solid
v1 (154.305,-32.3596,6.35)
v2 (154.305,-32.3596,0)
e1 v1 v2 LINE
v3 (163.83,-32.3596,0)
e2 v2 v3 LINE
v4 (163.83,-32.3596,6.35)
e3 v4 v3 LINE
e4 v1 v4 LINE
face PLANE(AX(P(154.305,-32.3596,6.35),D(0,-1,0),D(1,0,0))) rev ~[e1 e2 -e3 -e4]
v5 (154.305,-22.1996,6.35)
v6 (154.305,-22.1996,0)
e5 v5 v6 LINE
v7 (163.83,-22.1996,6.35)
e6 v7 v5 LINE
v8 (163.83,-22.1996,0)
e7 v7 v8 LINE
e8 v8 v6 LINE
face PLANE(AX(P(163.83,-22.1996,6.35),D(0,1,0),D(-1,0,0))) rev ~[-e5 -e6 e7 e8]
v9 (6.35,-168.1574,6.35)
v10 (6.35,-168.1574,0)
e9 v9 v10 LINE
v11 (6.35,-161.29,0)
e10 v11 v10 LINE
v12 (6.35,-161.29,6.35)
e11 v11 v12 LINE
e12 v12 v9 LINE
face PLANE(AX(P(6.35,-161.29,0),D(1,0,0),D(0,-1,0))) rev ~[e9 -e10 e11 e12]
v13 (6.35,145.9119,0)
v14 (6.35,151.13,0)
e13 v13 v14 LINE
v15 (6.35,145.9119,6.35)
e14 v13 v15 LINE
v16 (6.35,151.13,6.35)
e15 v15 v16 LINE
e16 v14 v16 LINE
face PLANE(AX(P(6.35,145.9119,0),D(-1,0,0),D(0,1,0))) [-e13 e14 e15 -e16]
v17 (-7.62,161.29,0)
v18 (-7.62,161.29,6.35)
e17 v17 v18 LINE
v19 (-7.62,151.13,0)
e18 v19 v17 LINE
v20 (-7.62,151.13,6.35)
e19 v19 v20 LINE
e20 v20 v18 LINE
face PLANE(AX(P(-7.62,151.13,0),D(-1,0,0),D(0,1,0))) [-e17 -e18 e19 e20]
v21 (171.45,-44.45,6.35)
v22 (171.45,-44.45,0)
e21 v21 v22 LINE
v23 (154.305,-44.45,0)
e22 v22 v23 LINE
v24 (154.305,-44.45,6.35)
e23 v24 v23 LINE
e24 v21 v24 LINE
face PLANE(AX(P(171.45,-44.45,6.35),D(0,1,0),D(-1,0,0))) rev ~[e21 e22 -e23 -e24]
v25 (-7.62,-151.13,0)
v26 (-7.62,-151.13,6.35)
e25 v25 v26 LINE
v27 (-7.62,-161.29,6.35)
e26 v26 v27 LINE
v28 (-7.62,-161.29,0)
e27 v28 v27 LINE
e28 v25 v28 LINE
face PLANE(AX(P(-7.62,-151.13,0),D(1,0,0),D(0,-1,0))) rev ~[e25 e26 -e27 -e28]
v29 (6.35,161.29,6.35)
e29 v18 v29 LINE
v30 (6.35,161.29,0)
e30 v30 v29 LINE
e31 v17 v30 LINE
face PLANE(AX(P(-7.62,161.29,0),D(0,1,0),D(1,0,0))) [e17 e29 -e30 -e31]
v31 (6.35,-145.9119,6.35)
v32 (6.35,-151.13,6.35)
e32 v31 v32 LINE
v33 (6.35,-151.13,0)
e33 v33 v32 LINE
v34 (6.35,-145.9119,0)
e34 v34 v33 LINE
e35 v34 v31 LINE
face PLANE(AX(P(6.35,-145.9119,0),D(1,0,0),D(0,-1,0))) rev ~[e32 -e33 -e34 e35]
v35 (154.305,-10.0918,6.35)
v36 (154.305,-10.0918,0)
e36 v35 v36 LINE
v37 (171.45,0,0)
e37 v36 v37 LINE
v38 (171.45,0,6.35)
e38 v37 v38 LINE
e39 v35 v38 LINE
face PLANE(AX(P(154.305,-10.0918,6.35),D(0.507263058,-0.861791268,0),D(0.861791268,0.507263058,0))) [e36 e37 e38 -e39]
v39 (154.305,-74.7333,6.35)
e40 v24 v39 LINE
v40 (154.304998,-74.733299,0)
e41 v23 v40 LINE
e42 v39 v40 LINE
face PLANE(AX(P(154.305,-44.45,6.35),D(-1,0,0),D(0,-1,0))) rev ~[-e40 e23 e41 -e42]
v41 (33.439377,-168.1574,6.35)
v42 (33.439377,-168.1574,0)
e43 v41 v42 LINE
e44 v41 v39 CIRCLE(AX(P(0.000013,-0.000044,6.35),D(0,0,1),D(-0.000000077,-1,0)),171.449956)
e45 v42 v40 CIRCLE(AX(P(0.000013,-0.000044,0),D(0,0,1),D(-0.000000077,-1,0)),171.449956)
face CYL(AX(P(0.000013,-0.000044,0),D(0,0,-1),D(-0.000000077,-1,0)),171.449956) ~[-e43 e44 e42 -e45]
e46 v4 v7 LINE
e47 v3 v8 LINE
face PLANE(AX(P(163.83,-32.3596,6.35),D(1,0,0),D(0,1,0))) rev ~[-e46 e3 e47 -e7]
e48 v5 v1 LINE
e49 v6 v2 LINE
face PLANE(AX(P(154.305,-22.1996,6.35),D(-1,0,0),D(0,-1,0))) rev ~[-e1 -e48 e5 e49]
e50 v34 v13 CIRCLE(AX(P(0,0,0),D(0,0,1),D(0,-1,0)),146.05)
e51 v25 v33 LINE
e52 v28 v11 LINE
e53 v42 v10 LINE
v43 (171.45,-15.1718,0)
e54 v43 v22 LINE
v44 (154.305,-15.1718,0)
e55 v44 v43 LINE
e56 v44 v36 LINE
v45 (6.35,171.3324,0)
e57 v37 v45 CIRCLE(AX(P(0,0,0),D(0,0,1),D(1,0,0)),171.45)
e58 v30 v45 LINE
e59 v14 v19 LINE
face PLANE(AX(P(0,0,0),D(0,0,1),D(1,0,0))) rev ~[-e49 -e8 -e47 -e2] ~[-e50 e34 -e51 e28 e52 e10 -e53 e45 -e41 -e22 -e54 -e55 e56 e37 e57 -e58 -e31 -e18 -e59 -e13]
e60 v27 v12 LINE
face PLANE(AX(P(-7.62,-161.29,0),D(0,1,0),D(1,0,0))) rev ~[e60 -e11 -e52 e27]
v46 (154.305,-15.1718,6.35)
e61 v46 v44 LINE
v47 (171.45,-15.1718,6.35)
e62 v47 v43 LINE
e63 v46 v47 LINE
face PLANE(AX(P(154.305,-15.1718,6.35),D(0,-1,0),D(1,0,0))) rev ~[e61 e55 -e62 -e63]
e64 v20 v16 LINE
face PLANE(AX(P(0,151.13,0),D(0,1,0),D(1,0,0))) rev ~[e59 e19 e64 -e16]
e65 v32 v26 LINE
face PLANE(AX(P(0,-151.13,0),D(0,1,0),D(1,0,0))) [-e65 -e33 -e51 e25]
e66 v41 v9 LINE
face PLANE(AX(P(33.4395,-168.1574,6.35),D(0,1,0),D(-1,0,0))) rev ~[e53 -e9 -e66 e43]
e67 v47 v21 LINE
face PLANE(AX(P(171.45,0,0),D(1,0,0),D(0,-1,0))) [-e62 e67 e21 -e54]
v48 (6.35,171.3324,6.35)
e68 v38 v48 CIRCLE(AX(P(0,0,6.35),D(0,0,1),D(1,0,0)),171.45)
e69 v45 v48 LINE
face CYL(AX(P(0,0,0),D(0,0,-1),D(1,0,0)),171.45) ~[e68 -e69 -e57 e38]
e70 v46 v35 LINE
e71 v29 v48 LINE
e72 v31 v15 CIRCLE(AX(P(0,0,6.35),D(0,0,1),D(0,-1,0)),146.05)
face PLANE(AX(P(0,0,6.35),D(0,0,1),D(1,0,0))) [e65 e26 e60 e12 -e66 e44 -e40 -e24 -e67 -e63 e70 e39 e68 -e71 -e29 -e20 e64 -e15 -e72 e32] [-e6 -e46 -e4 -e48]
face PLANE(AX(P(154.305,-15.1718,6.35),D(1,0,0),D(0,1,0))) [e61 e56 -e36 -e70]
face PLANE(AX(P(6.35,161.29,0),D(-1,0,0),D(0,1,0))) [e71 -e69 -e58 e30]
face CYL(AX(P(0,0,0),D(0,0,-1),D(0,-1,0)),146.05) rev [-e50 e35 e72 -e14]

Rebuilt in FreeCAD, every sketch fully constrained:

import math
import FreeCAD as App
import Part
import Sketcher
Q = App.Units.Quantity


def add_polygon(sketch, points):
    """Adds a closed chain of lines whose ends are joined by coincident constraints."""
    first, n = sketch.GeometryCount, len(points)
    for a, b in zip(points, points[1:] + points[:1]):
        sketch.addGeometry(Part.LineSegment(App.Vector(*a, 0), App.Vector(*b, 0)), False)
    for i in range(n):
        sketch.addConstraint(Sketcher.Constraint("Coincident", first + i, 2, first + (i + 1) % n, 1))

doc = App.newDocument("Part")
params = doc.addObject("Spreadsheet::Sheet", "Params")
for row, (alias, value) in enumerate([
    ("sketch1_radius", "5.75 in"),
    ("sketch1_radius2", "6.75 in"),
    ("sketch1_height", "0.4 in"),
    ("sketch1_width", "0.55 in"),
    ("sketch1_height2", "2.75 in"),
    ("pad1_length", "0.25 in"),
    ("sketch2_height", "1 in"),
    ("sketch2_height2", "0.2 in"),
    ("sketch2_height3", "0.4 in"),
    ("sketch2_width", "0.675 in"),
    ("sketch2_radius", "6.75 in"),
    ("pocket1_length", "1 in"),
    ("sketch3_height", "0.125 in"),
    ("sketch3_radius", "6.75 in"),
    ("pocket2_length", "1 in"),
], start=1):
    params.set(f"A{row}", alias)
    params.set(f"B{row}", "=" + value)
    params.setAlias(f"B{row}", alias)

body = doc.addObject("PartDesign::Body", "Body")

# Sketch on XY plane
sketch1 = body.newObject("Sketcher::SketchObject", "Sketch")
sketch1.AttachmentSupport = (doc.getObject("XY_Plane"), [""])
sketch1.MapMode = "FlatFace"
sketch1.addGeometry(Part.ArcOfCircle(Part.Circle(App.Vector(0, 0, 0), App.Vector(0, 0, 1), 146), math.radians(-88), math.radians(88)), False)
sketch1.addGeometry(Part.LineSegment(App.Vector(6, -146, 0), App.Vector(6, -151, 0)), False)
sketch1.addGeometry(Part.LineSegment(App.Vector(6, -151, 0), App.Vector(-8, -151, 0)), False)
sketch1.addGeometry(Part.LineSegment(App.Vector(-8, -151, 0), App.Vector(-8, -161, 0)), False)
sketch1.addGeometry(Part.LineSegment(App.Vector(-8, -161, 0), App.Vector(6, -161, 0)), False)
sketch1.addGeometry(Part.LineSegment(App.Vector(6, -161, 0), App.Vector(6, -171, 0)), False)
sketch1.addGeometry(Part.ArcOfCircle(Part.Circle(App.Vector(0, 0, 0), App.Vector(0, 0, 1), 171), math.radians(-88), math.radians(-24)), False)
sketch1.addGeometry(Part.LineSegment(App.Vector(157, -70, 0), App.Vector(171, -70, 0)), False)
sketch1.addGeometry(Part.LineSegment(App.Vector(171, -70, 0), App.Vector(171, 0, 0)), False)
sketch1.addGeometry(Part.ArcOfCircle(Part.Circle(App.Vector(0, 0, 0), App.Vector(0, 0, 1), 171), math.radians(0), math.radians(88)), False)
sketch1.addGeometry(Part.LineSegment(App.Vector(6, 171, 0), App.Vector(6, 161, 0)), False)
sketch1.addGeometry(Part.LineSegment(App.Vector(6, 161, 0), App.Vector(-8, 161, 0)), False)
sketch1.addGeometry(Part.LineSegment(App.Vector(-8, 161, 0), App.Vector(-8, 151, 0)), False)
sketch1.addGeometry(Part.LineSegment(App.Vector(-8, 151, 0), App.Vector(6, 151, 0)), False)
sketch1.addGeometry(Part.LineSegment(App.Vector(6, 151, 0), App.Vector(6, 146, 0)), False)
sketch1.addConstraint(Sketcher.Constraint("Coincident", 0, 1, 1, 1))
sketch1.addConstraint(Sketcher.Constraint("Coincident", 1, 2, 2, 1))
sketch1.addConstraint(Sketcher.Constraint("Coincident", 2, 2, 3, 1))
sketch1.addConstraint(Sketcher.Constraint("Coincident", 3, 2, 4, 1))
sketch1.addConstraint(Sketcher.Constraint("Coincident", 4, 2, 5, 1))
sketch1.addConstraint(Sketcher.Constraint("Coincident", 5, 2, 6, 1))
sketch1.addConstraint(Sketcher.Constraint("Coincident", 6, 2, 7, 1))
sketch1.addConstraint(Sketcher.Constraint("Coincident", 7, 2, 8, 1))
sketch1.addConstraint(Sketcher.Constraint("Tangent", 8, 2, 9, 1))
sketch1.addConstraint(Sketcher.Constraint("Coincident", 9, 2, 10, 1))
sketch1.addConstraint(Sketcher.Constraint("Coincident", 10, 2, 11, 1))
sketch1.addConstraint(Sketcher.Constraint("Coincident", 11, 2, 12, 1))
sketch1.addConstraint(Sketcher.Constraint("Coincident", 12, 2, 13, 1))
sketch1.addConstraint(Sketcher.Constraint("Coincident", 13, 2, 14, 1))
sketch1.addConstraint(Sketcher.Constraint("Coincident", 14, 2, 0, 2))
sketch1.addConstraint(Sketcher.Constraint("Vertical", 1))
sketch1.addConstraint(Sketcher.Constraint("Horizontal", 2))
sketch1.addConstraint(Sketcher.Constraint("Vertical", 3))
sketch1.addConstraint(Sketcher.Constraint("Horizontal", 4))
sketch1.addConstraint(Sketcher.Constraint("Vertical", 5))
sketch1.addConstraint(Sketcher.Constraint("Horizontal", 7))
sketch1.addConstraint(Sketcher.Constraint("Vertical", 8))
sketch1.addConstraint(Sketcher.Constraint("Vertical", 10))
sketch1.addConstraint(Sketcher.Constraint("Horizontal", 11))
sketch1.addConstraint(Sketcher.Constraint("Vertical", 12))
sketch1.addConstraint(Sketcher.Constraint("Horizontal", 13))
sketch1.addConstraint(Sketcher.Constraint("Vertical", 14))
sketch1.addConstraint(Sketcher.Constraint("Coincident", 0, 3, -1, 1))
sketch1.addConstraint(Sketcher.Constraint("Coincident", 6, 3, -1, 1))
sketch1.addConstraint(Sketcher.Constraint("Coincident", 9, 3, -1, 1))
sketch1.addConstraint(Sketcher.Constraint("Equal", 6, 9))
sketch1.addConstraint(Sketcher.Constraint("Symmetric", 4, 2, 10, 2, -1))
sketch1.addConstraint(Sketcher.Constraint("Symmetric", 2, 2, 12, 2, -1))
sketch1.addConstraint(Sketcher.Constraint("Vertical", 1, 2, 4, 2))
sketch1.addConstraint(Sketcher.Constraint("Vertical", 10, 2, 13, 2))
sketch1.addConstraint(Sketcher.Constraint("Radius", 0, Q("5.75 in")))
sketch1.addConstraint(Sketcher.Constraint("Radius", 6, Q("6.75 in")))
sketch1.addConstraint(Sketcher.Constraint("DistanceY", 3, 2, 3, 1, Q("0.4 in")))
sketch1.addConstraint(Sketcher.Constraint("DistanceX", 2, 2, 2, 1, Q("0.55 in")))
sketch1.addConstraint(Sketcher.Constraint("DistanceY", 8, 1, 8, 2, Q("2.75 in")))
sketch1.addConstraint(Sketcher.Constraint("DistanceX", -1, 1, 1, 2, Q("0.25 in")))
sketch1.addConstraint(Sketcher.Constraint("DistanceY", 1, 2, 7, 2, Q("3.2 in")))
sketch1.setExpression("Constraints[35]", "Params.sketch1_radius")
sketch1.setExpression("Constraints[36]", "Params.sketch1_radius2")
sketch1.setExpression("Constraints[37]", "Params.sketch1_height")
sketch1.setExpression("Constraints[38]", "Params.sketch1_width")
sketch1.setExpression("Constraints[39]", "Params.sketch1_height2")
pad1 = body.newObject("PartDesign::Pad", "Pad")
pad1.Profile = sketch1
pad1.setExpression("Length", "Params.pad1_length")

# Sketch on XY plane
sketch2 = body.newObject("Sketcher::SketchObject", "Sketch001")
sketch2.AttachmentSupport = (doc.getObject("XY_Plane"), [""])
sketch2.MapMode = "FlatFace"
sketch2.AttachmentOffset = App.Placement(App.Vector(0, 0, 0.25 * 25.4), App.Rotation())
sketch2.addGeometry(Part.LineSegment(App.Vector(154, -44, 0), App.Vector(154, -75, 0)), False)  # 0
sketch2.addGeometry(Part.ArcOfCircle(Part.Circle(App.Vector(0, 0, 0), App.Vector(0, 0, 1), 171), math.radians(-25.84), math.radians(-24.04)), False)  # 1
sketch2.addGeometry(Part.LineSegment(App.Vector(157, -70, 0), App.Vector(171, -70, 0)), False)  # 2
sketch2.addGeometry(Part.LineSegment(App.Vector(171, -70, 0), App.Vector(171, -44, 0)), False)  # 3
sketch2.addGeometry(Part.LineSegment(App.Vector(171, -44, 0), App.Vector(154, -44, 0)), False)  # 4
add_polygon(sketch2, [(154, -15), (171, -15), (171, 0), (154, -10)])  # lines 5-8
add_polygon(sketch2, [(164, -22), (154, -22), (154, -32), (164, -32)])  # lines 9-12
sketch2.addConstraint(Sketcher.Constraint("Coincident", 0, 2, 1, 1))
sketch2.addConstraint(Sketcher.Constraint("Coincident", 1, 2, 2, 1))
sketch2.addConstraint(Sketcher.Constraint("Coincident", 2, 2, 3, 1))
sketch2.addConstraint(Sketcher.Constraint("Coincident", 3, 2, 4, 1))
sketch2.addConstraint(Sketcher.Constraint("Coincident", 4, 2, 0, 1))
sketch2.addConstraint(Sketcher.Constraint("Vertical", 0))
sketch2.addConstraint(Sketcher.Constraint("Horizontal", 2))
sketch2.addConstraint(Sketcher.Constraint("Vertical", 3))
sketch2.addConstraint(Sketcher.Constraint("Horizontal", 4))
sketch2.addConstraint(Sketcher.Constraint("Horizontal", 5))
sketch2.addConstraint(Sketcher.Constraint("Vertical", 6))
sketch2.addConstraint(Sketcher.Constraint("Vertical", 8))
sketch2.addConstraint(Sketcher.Constraint("Horizontal", 9))
sketch2.addConstraint(Sketcher.Constraint("Vertical", 10))
sketch2.addConstraint(Sketcher.Constraint("Horizontal", 11))
sketch2.addConstraint(Sketcher.Constraint("Vertical", 12))
sketch2.addConstraint(Sketcher.Constraint("Coincident", 1, 3, -1, 1))
sketch2.addConstraint(Sketcher.Constraint("PointOnObject", 6, 2, -1))
sketch2.addConstraint(Sketcher.Constraint("Vertical", 3, 2, 5, 2))
sketch2.addConstraint(Sketcher.Constraint("Vertical", 4, 2, 7, 2))
sketch2.addConstraint(Sketcher.Constraint("Vertical", 8, 2, 9, 2))
sketch2.addConstraint(Sketcher.Constraint("DistanceY", 3, 1, 3, 2, Q("1 in")))
sketch2.addConstraint(Sketcher.Constraint("DistanceY", 8, 2, 8, 1, Q("0.2 in")))
sketch2.addConstraint(Sketcher.Constraint("DistanceY", 10, 2, 10, 1, Q("0.4 in")))
sketch2.addConstraint(Sketcher.Constraint("DistanceX", 11, 2, 3, 2, Q("0.3 in")))
sketch2.addConstraint(Sketcher.Constraint("DistanceX", 4, 2, 4, 1, Q("0.675 in")))
sketch2.addConstraint(Sketcher.Constraint("Radius", 1, Q("6.75 in")))
sketch2.addConstraint(Sketcher.Constraint("DistanceY", 1, 2, -1, 1, Q("2.75 in")))
sketch2.addConstraint(Sketcher.Constraint("DistanceX", -1, 1, 2, 2, Q("6.75 in")))
sketch2.addConstraint(Sketcher.Constraint("DistanceY", 9, 2, -1, 1, Q("0.874 in")))
sketch2.addConstraint(Sketcher.Constraint("DistanceY", 6, 1, 6, 2, 15.1718))
sketch2.setExpression("Constraints[29]", "Params.sketch2_height")
sketch2.setExpression("Constraints[30]", "Params.sketch2_height2")
sketch2.setExpression("Constraints[31]", "Params.sketch2_height3")
sketch2.setExpression("Constraints[33]", "Params.sketch2_width")
sketch2.setExpression("Constraints[34]", "Params.sketch2_radius")
pocket1 = body.newObject("PartDesign::Pocket", "Pocket")
pocket1.Profile = sketch2
pocket1.setExpression("Length", "Params.pocket1_length")

# Sketch on XY plane
sketch3 = body.newObject("Sketcher::SketchObject", "Sketch002")
sketch3.AttachmentSupport = (doc.getObject("XY_Plane"), [""])
sketch3.MapMode = "FlatFace"
sketch3.AttachmentOffset = App.Placement(App.Vector(0, 0, 0.25 * 25.4), App.Rotation())
sketch3.addGeometry(Part.LineSegment(App.Vector(33.4, -168.2, 0), App.Vector(6.3, -168.2, 0)), False)
sketch3.addGeometry(Part.LineSegment(App.Vector(6.3, -168.2, 0), App.Vector(6.3, -171.3, 0)), False)
sketch3.addGeometry(Part.ArcOfCircle(Part.Circle(App.Vector(0, 0, 0), App.Vector(0, 0, 1), 171.5), math.radians(-87.88), math.radians(-78.75)), False)
sketch3.addConstraint(Sketcher.Constraint("Coincident", 0, 2, 1, 1))
sketch3.addConstraint(Sketcher.Constraint("Coincident", 1, 2, 2, 1))
sketch3.addConstraint(Sketcher.Constraint("Coincident", 2, 2, 0, 1))
sketch3.addConstraint(Sketcher.Constraint("Horizontal", 0))
sketch3.addConstraint(Sketcher.Constraint("Vertical", 1))
sketch3.addConstraint(Sketcher.Constraint("Coincident", 2, 3, -1, 1))
sketch3.addConstraint(Sketcher.Constraint("DistanceY", 1, 2, 1, 1, Q("0.125 in")))
sketch3.addConstraint(Sketcher.Constraint("Radius", 2, Q("6.75 in")))
sketch3.addConstraint(Sketcher.Constraint("DistanceX", -1, 1, 0, 2, Q("0.25 in")))
sketch3.setExpression("Constraints[6]", "Params.sketch3_height")
sketch3.setExpression("Constraints[7]", "Params.sketch3_radius")
pocket2 = body.newObject("PartDesign::Pocket", "Pocket001")
pocket2.Profile = sketch3
pocket2.setExpression("Length", "Params.pocket2_length")

doc.recompute()
